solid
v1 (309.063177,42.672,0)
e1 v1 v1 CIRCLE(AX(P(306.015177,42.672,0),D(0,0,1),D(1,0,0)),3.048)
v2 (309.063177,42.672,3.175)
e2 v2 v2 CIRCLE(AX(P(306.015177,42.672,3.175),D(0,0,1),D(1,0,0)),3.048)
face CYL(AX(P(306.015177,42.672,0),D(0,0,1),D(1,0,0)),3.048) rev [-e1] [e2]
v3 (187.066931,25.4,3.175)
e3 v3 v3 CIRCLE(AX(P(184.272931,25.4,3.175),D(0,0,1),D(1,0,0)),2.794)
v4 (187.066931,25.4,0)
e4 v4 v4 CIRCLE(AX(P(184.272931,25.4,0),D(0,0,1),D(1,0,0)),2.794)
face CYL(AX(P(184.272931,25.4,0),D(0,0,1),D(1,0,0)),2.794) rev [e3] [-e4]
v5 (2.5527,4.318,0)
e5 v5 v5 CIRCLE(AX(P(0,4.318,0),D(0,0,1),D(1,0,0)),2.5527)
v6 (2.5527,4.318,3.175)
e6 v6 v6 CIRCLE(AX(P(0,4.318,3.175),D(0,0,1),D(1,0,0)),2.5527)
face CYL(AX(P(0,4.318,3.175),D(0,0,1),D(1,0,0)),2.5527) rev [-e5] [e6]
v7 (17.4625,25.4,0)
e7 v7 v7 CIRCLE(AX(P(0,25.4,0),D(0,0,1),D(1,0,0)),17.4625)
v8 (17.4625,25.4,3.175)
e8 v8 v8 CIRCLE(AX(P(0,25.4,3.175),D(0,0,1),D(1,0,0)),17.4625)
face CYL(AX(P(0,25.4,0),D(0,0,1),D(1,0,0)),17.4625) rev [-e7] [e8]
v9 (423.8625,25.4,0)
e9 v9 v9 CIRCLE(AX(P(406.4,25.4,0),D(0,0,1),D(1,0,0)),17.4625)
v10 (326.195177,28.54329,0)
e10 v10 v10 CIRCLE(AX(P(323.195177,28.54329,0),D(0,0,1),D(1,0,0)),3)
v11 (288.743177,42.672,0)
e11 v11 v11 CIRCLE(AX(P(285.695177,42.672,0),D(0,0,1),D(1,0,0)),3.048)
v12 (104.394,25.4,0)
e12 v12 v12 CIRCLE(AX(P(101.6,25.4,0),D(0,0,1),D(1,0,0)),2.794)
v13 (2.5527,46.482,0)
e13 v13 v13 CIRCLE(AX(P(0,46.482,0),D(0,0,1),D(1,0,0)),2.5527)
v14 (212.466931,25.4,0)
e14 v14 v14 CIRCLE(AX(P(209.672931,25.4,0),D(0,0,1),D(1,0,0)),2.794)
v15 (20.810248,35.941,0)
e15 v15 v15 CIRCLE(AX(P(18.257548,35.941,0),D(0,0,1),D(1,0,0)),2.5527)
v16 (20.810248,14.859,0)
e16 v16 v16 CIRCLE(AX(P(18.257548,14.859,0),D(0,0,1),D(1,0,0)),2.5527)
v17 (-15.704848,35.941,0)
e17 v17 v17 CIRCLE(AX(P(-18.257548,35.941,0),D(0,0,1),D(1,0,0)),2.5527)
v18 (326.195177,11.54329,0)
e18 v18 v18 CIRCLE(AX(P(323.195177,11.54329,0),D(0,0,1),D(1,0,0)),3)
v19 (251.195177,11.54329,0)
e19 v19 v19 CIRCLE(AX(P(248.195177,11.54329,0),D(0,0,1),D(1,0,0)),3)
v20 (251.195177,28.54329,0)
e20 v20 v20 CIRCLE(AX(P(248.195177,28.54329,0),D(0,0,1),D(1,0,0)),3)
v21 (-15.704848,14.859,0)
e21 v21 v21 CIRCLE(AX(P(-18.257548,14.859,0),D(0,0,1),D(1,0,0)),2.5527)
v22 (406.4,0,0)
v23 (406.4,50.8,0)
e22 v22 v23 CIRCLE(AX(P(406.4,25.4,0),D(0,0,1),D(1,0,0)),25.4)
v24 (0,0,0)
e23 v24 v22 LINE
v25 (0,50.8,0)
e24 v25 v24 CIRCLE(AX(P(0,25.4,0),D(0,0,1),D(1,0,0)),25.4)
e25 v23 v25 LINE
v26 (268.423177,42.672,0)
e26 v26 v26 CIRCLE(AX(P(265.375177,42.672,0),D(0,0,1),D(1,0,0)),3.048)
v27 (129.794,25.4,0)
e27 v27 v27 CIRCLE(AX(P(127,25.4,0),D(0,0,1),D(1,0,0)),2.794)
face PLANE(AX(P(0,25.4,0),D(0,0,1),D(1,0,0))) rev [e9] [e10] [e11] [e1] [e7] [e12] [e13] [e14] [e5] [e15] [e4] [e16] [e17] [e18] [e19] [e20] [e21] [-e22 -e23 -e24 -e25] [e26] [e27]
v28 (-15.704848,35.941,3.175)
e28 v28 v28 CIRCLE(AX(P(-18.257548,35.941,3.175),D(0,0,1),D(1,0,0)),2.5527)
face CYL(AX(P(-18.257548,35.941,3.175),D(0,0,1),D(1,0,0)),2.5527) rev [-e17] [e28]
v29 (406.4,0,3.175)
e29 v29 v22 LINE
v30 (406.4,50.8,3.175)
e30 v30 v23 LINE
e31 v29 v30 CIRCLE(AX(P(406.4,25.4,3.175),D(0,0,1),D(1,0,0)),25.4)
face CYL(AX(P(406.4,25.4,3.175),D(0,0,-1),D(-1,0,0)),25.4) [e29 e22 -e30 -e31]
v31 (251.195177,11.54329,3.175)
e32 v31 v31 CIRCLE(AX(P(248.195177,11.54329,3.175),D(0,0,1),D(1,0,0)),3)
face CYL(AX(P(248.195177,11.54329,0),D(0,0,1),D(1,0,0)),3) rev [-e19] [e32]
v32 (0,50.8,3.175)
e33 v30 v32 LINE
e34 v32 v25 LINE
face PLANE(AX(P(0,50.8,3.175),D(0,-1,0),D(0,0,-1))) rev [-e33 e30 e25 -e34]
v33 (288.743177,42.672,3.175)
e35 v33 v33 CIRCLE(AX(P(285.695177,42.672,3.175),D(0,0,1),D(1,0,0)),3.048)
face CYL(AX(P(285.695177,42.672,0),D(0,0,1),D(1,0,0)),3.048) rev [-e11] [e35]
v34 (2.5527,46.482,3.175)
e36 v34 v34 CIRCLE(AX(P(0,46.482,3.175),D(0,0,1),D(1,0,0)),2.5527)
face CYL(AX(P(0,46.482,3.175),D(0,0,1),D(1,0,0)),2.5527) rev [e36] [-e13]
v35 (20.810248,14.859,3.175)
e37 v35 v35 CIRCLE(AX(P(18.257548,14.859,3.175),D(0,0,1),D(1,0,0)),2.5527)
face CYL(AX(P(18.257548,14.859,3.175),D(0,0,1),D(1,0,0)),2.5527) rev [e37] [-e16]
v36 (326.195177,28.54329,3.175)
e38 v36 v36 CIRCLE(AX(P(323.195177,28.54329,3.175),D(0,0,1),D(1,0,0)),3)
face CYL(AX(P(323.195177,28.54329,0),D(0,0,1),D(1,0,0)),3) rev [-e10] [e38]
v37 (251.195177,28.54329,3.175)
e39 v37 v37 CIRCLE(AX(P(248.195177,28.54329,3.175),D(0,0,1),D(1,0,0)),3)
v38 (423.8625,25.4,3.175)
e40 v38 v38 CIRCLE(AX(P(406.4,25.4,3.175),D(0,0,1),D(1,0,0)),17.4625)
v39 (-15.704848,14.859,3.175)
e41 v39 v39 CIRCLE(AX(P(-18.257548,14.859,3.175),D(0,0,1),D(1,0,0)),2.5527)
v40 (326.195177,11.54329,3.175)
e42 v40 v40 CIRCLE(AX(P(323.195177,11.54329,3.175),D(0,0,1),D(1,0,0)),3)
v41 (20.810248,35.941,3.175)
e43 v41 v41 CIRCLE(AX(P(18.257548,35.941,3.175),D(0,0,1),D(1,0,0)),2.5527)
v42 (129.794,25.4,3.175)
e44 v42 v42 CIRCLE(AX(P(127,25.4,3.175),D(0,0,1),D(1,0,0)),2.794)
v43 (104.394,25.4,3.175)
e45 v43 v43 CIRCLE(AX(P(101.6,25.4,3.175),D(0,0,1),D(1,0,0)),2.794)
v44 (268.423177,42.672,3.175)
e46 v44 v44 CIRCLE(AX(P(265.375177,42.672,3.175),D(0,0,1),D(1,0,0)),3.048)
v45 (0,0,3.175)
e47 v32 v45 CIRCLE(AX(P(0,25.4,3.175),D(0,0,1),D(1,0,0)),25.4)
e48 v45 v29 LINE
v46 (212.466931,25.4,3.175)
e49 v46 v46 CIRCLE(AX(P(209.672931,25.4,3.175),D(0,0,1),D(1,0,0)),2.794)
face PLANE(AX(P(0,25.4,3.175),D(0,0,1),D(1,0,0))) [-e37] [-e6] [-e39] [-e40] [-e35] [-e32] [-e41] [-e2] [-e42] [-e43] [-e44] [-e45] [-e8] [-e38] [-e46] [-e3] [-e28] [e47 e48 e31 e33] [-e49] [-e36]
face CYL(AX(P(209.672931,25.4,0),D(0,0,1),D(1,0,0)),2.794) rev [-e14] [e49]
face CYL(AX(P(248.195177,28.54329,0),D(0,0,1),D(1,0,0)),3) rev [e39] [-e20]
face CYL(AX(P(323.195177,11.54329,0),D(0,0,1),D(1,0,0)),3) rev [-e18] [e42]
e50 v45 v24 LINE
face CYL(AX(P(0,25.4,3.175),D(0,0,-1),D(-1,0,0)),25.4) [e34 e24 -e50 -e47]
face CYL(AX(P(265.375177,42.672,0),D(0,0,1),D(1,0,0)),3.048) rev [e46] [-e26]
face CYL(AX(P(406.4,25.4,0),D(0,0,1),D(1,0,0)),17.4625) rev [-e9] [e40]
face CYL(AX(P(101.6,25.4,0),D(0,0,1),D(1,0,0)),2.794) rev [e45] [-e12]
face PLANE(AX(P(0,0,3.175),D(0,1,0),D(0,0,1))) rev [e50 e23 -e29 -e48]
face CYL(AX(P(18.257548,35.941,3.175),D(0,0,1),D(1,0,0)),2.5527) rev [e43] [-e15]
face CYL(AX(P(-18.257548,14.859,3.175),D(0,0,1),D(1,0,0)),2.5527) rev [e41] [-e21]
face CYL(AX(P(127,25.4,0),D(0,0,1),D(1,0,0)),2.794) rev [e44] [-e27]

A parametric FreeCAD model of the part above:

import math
import FreeCAD as App
import Part
import Sketcher
Q = App.Units.Quantity

doc = App.newDocument("Part")
body = doc.addObject("PartDesign::Body", "Body")

# Sketch on XY plane
sketch1 = body.newObject("Sketcher::SketchObject", "Sketch")
sketch1.AttachmentSupport = (doc.getObject("XY_Plane"), [""])
sketch1.MapMode = "FlatFace"
sketch1.addGeometry(Part.LineSegment(App.Vector(0, 0, 0), App.Vector(406, 0, 0)), False)
sketch1.addGeometry(Part.ArcOfCircle(Part.Circle(App.Vector(406, 25, 0), App.Vector(0, 0, 1), 25), math.radians(-90), math.radians(90)), False)
sketch1.addGeometry(Part.LineSegment(App.Vector(406, 51, 0), App.Vector(0, 51, 0)), False)
sketch1.addGeometry(Part.ArcOfCircle(Part.Circle(App.Vector(0, 25, 0), App.Vector(0, 0, 1), 25), math.radians(90), math.radians(270)), False)
sketch1.addConstraint(Sketcher.Constraint("Tangent", 0, 2, 1, 1))
sketch1.addConstraint(Sketcher.Constraint("Tangent", 1, 2, 2, 1))
sketch1.addConstraint(Sketcher.Constraint("Tangent", 2, 2, 3, 1))
sketch1.addConstraint(Sketcher.Constraint("Tangent", 3, 2, 0, 1))
sketch1.addConstraint(Sketcher.Constraint("Horizontal", 0))
sketch1.addConstraint(Sketcher.Constraint("Horizontal", 2))
sketch1.addConstraint(Sketcher.Constraint("Coincident", 3, 2, -1, 1))
sketch1.addConstraint(Sketcher.Constraint("Radius", 1, Q("1 in")))
sketch1.addConstraint(Sketcher.Constraint("DistanceX", 0, 1, 0, 2, Q("16 in")))
pad1 = body.newObject("PartDesign::Pad", "Pad")
pad1.Profile = sketch1
pad1.Length = Q("0.125 in")

# Sketch on XY plane
sketch2 = body.newObject("Sketcher::SketchObject", "Sketch001")
sketch2.AttachmentSupport = (doc.getObject("XY_Plane"), [""])
sketch2.MapMode = "FlatFace"
sketch2.AttachmentOffset = App.Placement(App.Vector(0, 0, 0.125 * 25.4), App.Rotation())
sketch2.addGeometry(Part.Circle(App.Vector(0, 25, 0), App.Vector(0, 0, 1), 17), False)
sketch2.addGeometry(Part.Circle(App.Vector(406, 25, 0), App.Vector(0, 0, 1), 17), False)
sketch2.addConstraint(Sketcher.Constraint("Equal", 0, 1))
sketch2.addConstraint(Sketcher.Constraint("PointOnObject", 0, 3, -2))
sketch2.addConstraint(Sketcher.Constraint("Horizontal", 0, 3, 1, 3))
sketch2.addConstraint(Sketcher.Constraint("Diameter", 0, Q("1.375 in")))
sketch2.addConstraint(Sketcher.Constraint("DistanceY", -1, 1, 0, 3, Q("1 in")))
sketch2.addConstraint(Sketcher.Constraint("DistanceX", -1, 1, 1, 3, Q("16 in")))
pocket1 = body.newObject("PartDesign::Pocket", "Pocket")
pocket1.Profile = sketch2
pocket1.Type = "ThroughAll"

# Sketch on XY plane
sketch3 = body.newObject("Sketcher::SketchObject", "Sketch002")
sketch3.AttachmentSupport = (doc.getObject("XY_Plane"), [""])
sketch3.MapMode = "FlatFace"
sketch3.AttachmentOffset = App.Placement(App.Vector(0, 0, 0.125 * 25.4), App.Rotation())
sketch3.addGeometry(Part.Circle(App.Vector(18.3, 35.9, 0), App.Vector(0, 0, 1), 2.6), False)
sketch3.addGeometry(Part.Circle(App.Vector(18.3, 14.9, 0), App.Vector(0, 0, 1), 2.6), False)
sketch3.addGeometry(Part.Circle(App.Vector(0, 4.3, 0), App.Vector(0, 0, 1), 2.6), False)
sketch3.addGeometry(Part.Circle(App.Vector(-18.3, 14.9, 0), App.Vector(0, 0, 1), 2.6), False)
sketch3.addGeometry(Part.Circle(App.Vector(-18.3, 35.9, 0), App.Vector(0, 0, 1), 2.6), False)
sketch3.addGeometry(Part.Circle(App.Vector(0, 46.5, 0), App.Vector(0, 0, 1), 2.6), False)
sketch3.addConstraint(Sketcher.Constraint("Equal", 0, 1))
sketch3.addConstraint(Sketcher.Constraint("Equal", 1, 2))
sketch3.addConstraint(Sketcher.Constraint("Equal", 2, 3))
sketch3.addConstraint(Sketcher.Constraint("Equal", 3, 4))
sketch3.addConstraint(Sketcher.Constraint("Equal", 4, 5))
sketch3.addConstraint(Sketcher.Constraint("Symmetric", 1, 3, 3, 3, -2))
sketch3.addConstraint(Sketcher.Constraint("Symmetric", 0, 3, 4, 3, -2))
sketch3.addConstraint(Sketcher.Constraint("PointOnObject", 2, 3, -2))
sketch3.addConstraint(Sketcher.Constraint("PointOnObject", 5, 3, -2))
sketch3.addConstraint(Sketcher.Constraint("Vertical", 0, 3, 1, 3))
sketch3.addConstraint(Sketcher.Constraint("Diameter", 0, Q("0.201 in")))
sketch3.addConstraint(Sketcher.Constraint("DistanceY", -1, 1, 2, 3, Q("0.17 in")))
sketch3.addConstraint(Sketcher.Constraint("DistanceY", -1, 1, 5, 3, Q("1.83 in")))
sketch3.addConstraint(Sketcher.Constraint("DistanceY", 1, 3, 0, 3, Q("0.83 in")))
sketch3.addConstraint(Sketcher.Constraint("DistanceY", -1, 1, 0, 3, Q("1.415 in")))
sketch3.addConstraint(Sketcher.Constraint("DistanceX", -1, 1, 0, 3, 18.257548))
doc.recompute()
hole = body.newObject("PartDesign::Hole", "Hole")
hole.Profile = sketch3
hole.ThreadType = "None"
hole.Diameter = Q("0.201 in")
hole.DepthType = "ThroughAll"

# Sketch on XY plane
sketch4 = body.newObject("Sketcher::SketchObject", "Sketch003")
sketch4.AttachmentSupport = (doc.getObject("XY_Plane"), [""])
sketch4.MapMode = "FlatFace"
sketch4.AttachmentOffset = App.Placement(App.Vector(0, 0, 0.125 * 25.4), App.Rotation())
sketch4.addGeometry(Part.Circle(App.Vector(101.6, 25.4, 0), App.Vector(0, 0, 1), 2.8), False)
sketch4.addGeometry(Part.Circle(App.Vector(127, 25.4, 0), App.Vector(0, 0, 1), 2.8), False)
sketch4.addGeometry(Part.Circle(App.Vector(184.3, 25.4, 0), App.Vector(0, 0, 1), 2.8), False)
sketch4.addGeometry(Part.Circle(App.Vector(209.7, 25.4, 0), App.Vector(0, 0, 1), 2.8), False)
sketch4.addConstraint(Sketcher.Constraint("Equal", 0, 1))
sketch4.addConstraint(Sketcher.Constraint("Equal", 1, 2))
sketch4.addConstraint(Sketcher.Constraint("Equal", 2, 3))
sketch4.addConstraint(Sketcher.Constraint("Horizontal", 0, 3, 1, 3))
sketch4.addConstraint(Sketcher.Constraint("Horizontal", 1, 3, 2, 3))
sketch4.addConstraint(Sketcher.Constraint("Horizontal", 2, 3, 3, 3))
sketch4.addConstraint(Sketcher.Constraint("Diameter", 0, Q("0.22 in")))
sketch4.addConstraint(Sketcher.Constraint("DistanceX", -1, 1, 0, 3, Q("4 in")))
sketch4.addConstraint(Sketcher.Constraint("DistanceY", -1, 1, 0, 3, Q("1 in")))
sketch4.addConstraint(Sketcher.Constraint("DistanceX", -1, 1, 1, 3, Q("5 in")))
sketch4.addConstraint(Sketcher.Constraint("DistanceX", 2, 3, 3, 3, Q("1 in")))
sketch4.addConstraint(Sketcher.Constraint("DistanceX", -1, 1, 2, 3, 184.272931))
pocket2 = body.newObject("PartDesign::Pocket", "Pocket001")
pocket2.Profile = sketch4
pocket2.Type = "ThroughAll"

# Sketch on XY plane
sketch5 = body.newObject("Sketcher::SketchObject", "Sketch004")
sketch5.AttachmentSupport = (doc.getObject("XY_Plane"), [""])
sketch5.MapMode = "FlatFace"
sketch5.AttachmentOffset = App.Placement(App.Vector(0, 0, 0.125 * 25.4), App.Rotation())
sketch5.addGeometry(Part.Circle(App.Vector(306, 42.7, 0), App.Vector(0, 0, 1), 3), False)
sketch5.addGeometry(Part.Circle(App.Vector(285.7, 42.7, 0), App.Vector(0, 0, 1), 3), False)
sketch5.addGeometry(Part.Circle(App.Vector(265.4, 42.7, 0), App.Vector(0, 0, 1), 3), False)
sketch5.addConstraint(Sketcher.Constraint("Equal", 0, 1))
sketch5.addConstraint(Sketcher.Constraint("Equal", 1, 2))
sketch5.addConstraint(Sketcher.Constraint("Horizontal", 0, 3, 1, 3))
sketch5.addConstraint(Sketcher.Constraint("Horizontal", 1, 3, 2, 3))
sketch5.addConstraint(Sketcher.Constraint("Diameter", 0, Q("0.24 in")))
sketch5.addConstraint(Sketcher.Constraint("DistanceX", 1, 3, 0, 3, Q("0.8 in")))
sketch5.addConstraint(Sketcher.Constraint("DistanceX", 2, 3, 1, 3, Q("0.8 in")))
sketch5.addConstraint(Sketcher.Constraint("DistanceY", -1, 1, 0, 3, Q("1.68 in")))
sketch5.addConstraint(Sketcher.Constraint("DistanceX", -1, 1, 0, 3, 306.015177))
pocket3 = body.newObject("PartDesign::Pocket", "Pocket002")
pocket3.Profile = sketch5
pocket3.Type = "ThroughAll"

# Sketch on XY plane
sketch6 = body.newObject("Sketcher::SketchObject", "Sketch005")
sketch6.AttachmentSupport = (doc.getObject("XY_Plane"), [""])
sketch6.MapMode = "FlatFace"
sketch6.AttachmentOffset = App.Placement(App.Vector(0, 0, 0.125 * 25.4), App.Rotation())
sketch6.addGeometry(Part.Circle(App.Vector(323.2, 11.5, 0), App.Vector(0, 0, 1), 3), False)
sketch6.addGeometry(Part.Circle(App.Vector(323.2, 28.5, 0), App.Vector(0, 0, 1), 3), False)
sketch6.addGeometry(Part.Circle(App.Vector(248.2, 11.5, 0), App.Vector(0, 0, 1), 3), False)
sketch6.addGeometry(Part.Circle(App.Vector(248.2, 28.5, 0), App.Vector(0, 0, 1), 3), False)
sketch6.addConstraint(Sketcher.Constraint("Equal", 0, 1))
sketch6.addConstraint(Sketcher.Constraint("Equal", 1, 2))
sketch6.addConstraint(Sketcher.Constraint("Equal", 2, 3))
sketch6.addConstraint(Sketcher.Constraint("Horizontal", 0, 3, 2, 3))
sketch6.addConstraint(Sketcher.Constraint("Horizontal", 1, 3, 3, 3))
sketch6.addConstraint(Sketcher.Constraint("Vertical", 0, 3, 1, 3))
sketch6.addConstraint(Sketcher.Constraint("Vertical", 2, 3, 3, 3))
sketch6.addConstraint(Sketcher.Constraint("Diameter", 0, 6.0))
sketch6.addConstraint(Sketcher.Constraint("DistanceY", 0, 3, 1, 3, 17.0))
sketch6.addConstraint(Sketcher.Constraint("DistanceX", 2, 3, 0, 3, 75.0))
sketch6.addConstraint(Sketcher.Constraint("DistanceY", -1, 1, 0, 3, 11.54329))
sketch6.addConstraint(Sketcher.Constraint("DistanceX", -1, 1, 0, 3, 323.195177))
pocket4 = body.newObject("PartDesign::Pocket", "Pocket003")
pocket4.Profile = sketch6
pocket4.Type = "ThroughAll"

doc.recompute()
